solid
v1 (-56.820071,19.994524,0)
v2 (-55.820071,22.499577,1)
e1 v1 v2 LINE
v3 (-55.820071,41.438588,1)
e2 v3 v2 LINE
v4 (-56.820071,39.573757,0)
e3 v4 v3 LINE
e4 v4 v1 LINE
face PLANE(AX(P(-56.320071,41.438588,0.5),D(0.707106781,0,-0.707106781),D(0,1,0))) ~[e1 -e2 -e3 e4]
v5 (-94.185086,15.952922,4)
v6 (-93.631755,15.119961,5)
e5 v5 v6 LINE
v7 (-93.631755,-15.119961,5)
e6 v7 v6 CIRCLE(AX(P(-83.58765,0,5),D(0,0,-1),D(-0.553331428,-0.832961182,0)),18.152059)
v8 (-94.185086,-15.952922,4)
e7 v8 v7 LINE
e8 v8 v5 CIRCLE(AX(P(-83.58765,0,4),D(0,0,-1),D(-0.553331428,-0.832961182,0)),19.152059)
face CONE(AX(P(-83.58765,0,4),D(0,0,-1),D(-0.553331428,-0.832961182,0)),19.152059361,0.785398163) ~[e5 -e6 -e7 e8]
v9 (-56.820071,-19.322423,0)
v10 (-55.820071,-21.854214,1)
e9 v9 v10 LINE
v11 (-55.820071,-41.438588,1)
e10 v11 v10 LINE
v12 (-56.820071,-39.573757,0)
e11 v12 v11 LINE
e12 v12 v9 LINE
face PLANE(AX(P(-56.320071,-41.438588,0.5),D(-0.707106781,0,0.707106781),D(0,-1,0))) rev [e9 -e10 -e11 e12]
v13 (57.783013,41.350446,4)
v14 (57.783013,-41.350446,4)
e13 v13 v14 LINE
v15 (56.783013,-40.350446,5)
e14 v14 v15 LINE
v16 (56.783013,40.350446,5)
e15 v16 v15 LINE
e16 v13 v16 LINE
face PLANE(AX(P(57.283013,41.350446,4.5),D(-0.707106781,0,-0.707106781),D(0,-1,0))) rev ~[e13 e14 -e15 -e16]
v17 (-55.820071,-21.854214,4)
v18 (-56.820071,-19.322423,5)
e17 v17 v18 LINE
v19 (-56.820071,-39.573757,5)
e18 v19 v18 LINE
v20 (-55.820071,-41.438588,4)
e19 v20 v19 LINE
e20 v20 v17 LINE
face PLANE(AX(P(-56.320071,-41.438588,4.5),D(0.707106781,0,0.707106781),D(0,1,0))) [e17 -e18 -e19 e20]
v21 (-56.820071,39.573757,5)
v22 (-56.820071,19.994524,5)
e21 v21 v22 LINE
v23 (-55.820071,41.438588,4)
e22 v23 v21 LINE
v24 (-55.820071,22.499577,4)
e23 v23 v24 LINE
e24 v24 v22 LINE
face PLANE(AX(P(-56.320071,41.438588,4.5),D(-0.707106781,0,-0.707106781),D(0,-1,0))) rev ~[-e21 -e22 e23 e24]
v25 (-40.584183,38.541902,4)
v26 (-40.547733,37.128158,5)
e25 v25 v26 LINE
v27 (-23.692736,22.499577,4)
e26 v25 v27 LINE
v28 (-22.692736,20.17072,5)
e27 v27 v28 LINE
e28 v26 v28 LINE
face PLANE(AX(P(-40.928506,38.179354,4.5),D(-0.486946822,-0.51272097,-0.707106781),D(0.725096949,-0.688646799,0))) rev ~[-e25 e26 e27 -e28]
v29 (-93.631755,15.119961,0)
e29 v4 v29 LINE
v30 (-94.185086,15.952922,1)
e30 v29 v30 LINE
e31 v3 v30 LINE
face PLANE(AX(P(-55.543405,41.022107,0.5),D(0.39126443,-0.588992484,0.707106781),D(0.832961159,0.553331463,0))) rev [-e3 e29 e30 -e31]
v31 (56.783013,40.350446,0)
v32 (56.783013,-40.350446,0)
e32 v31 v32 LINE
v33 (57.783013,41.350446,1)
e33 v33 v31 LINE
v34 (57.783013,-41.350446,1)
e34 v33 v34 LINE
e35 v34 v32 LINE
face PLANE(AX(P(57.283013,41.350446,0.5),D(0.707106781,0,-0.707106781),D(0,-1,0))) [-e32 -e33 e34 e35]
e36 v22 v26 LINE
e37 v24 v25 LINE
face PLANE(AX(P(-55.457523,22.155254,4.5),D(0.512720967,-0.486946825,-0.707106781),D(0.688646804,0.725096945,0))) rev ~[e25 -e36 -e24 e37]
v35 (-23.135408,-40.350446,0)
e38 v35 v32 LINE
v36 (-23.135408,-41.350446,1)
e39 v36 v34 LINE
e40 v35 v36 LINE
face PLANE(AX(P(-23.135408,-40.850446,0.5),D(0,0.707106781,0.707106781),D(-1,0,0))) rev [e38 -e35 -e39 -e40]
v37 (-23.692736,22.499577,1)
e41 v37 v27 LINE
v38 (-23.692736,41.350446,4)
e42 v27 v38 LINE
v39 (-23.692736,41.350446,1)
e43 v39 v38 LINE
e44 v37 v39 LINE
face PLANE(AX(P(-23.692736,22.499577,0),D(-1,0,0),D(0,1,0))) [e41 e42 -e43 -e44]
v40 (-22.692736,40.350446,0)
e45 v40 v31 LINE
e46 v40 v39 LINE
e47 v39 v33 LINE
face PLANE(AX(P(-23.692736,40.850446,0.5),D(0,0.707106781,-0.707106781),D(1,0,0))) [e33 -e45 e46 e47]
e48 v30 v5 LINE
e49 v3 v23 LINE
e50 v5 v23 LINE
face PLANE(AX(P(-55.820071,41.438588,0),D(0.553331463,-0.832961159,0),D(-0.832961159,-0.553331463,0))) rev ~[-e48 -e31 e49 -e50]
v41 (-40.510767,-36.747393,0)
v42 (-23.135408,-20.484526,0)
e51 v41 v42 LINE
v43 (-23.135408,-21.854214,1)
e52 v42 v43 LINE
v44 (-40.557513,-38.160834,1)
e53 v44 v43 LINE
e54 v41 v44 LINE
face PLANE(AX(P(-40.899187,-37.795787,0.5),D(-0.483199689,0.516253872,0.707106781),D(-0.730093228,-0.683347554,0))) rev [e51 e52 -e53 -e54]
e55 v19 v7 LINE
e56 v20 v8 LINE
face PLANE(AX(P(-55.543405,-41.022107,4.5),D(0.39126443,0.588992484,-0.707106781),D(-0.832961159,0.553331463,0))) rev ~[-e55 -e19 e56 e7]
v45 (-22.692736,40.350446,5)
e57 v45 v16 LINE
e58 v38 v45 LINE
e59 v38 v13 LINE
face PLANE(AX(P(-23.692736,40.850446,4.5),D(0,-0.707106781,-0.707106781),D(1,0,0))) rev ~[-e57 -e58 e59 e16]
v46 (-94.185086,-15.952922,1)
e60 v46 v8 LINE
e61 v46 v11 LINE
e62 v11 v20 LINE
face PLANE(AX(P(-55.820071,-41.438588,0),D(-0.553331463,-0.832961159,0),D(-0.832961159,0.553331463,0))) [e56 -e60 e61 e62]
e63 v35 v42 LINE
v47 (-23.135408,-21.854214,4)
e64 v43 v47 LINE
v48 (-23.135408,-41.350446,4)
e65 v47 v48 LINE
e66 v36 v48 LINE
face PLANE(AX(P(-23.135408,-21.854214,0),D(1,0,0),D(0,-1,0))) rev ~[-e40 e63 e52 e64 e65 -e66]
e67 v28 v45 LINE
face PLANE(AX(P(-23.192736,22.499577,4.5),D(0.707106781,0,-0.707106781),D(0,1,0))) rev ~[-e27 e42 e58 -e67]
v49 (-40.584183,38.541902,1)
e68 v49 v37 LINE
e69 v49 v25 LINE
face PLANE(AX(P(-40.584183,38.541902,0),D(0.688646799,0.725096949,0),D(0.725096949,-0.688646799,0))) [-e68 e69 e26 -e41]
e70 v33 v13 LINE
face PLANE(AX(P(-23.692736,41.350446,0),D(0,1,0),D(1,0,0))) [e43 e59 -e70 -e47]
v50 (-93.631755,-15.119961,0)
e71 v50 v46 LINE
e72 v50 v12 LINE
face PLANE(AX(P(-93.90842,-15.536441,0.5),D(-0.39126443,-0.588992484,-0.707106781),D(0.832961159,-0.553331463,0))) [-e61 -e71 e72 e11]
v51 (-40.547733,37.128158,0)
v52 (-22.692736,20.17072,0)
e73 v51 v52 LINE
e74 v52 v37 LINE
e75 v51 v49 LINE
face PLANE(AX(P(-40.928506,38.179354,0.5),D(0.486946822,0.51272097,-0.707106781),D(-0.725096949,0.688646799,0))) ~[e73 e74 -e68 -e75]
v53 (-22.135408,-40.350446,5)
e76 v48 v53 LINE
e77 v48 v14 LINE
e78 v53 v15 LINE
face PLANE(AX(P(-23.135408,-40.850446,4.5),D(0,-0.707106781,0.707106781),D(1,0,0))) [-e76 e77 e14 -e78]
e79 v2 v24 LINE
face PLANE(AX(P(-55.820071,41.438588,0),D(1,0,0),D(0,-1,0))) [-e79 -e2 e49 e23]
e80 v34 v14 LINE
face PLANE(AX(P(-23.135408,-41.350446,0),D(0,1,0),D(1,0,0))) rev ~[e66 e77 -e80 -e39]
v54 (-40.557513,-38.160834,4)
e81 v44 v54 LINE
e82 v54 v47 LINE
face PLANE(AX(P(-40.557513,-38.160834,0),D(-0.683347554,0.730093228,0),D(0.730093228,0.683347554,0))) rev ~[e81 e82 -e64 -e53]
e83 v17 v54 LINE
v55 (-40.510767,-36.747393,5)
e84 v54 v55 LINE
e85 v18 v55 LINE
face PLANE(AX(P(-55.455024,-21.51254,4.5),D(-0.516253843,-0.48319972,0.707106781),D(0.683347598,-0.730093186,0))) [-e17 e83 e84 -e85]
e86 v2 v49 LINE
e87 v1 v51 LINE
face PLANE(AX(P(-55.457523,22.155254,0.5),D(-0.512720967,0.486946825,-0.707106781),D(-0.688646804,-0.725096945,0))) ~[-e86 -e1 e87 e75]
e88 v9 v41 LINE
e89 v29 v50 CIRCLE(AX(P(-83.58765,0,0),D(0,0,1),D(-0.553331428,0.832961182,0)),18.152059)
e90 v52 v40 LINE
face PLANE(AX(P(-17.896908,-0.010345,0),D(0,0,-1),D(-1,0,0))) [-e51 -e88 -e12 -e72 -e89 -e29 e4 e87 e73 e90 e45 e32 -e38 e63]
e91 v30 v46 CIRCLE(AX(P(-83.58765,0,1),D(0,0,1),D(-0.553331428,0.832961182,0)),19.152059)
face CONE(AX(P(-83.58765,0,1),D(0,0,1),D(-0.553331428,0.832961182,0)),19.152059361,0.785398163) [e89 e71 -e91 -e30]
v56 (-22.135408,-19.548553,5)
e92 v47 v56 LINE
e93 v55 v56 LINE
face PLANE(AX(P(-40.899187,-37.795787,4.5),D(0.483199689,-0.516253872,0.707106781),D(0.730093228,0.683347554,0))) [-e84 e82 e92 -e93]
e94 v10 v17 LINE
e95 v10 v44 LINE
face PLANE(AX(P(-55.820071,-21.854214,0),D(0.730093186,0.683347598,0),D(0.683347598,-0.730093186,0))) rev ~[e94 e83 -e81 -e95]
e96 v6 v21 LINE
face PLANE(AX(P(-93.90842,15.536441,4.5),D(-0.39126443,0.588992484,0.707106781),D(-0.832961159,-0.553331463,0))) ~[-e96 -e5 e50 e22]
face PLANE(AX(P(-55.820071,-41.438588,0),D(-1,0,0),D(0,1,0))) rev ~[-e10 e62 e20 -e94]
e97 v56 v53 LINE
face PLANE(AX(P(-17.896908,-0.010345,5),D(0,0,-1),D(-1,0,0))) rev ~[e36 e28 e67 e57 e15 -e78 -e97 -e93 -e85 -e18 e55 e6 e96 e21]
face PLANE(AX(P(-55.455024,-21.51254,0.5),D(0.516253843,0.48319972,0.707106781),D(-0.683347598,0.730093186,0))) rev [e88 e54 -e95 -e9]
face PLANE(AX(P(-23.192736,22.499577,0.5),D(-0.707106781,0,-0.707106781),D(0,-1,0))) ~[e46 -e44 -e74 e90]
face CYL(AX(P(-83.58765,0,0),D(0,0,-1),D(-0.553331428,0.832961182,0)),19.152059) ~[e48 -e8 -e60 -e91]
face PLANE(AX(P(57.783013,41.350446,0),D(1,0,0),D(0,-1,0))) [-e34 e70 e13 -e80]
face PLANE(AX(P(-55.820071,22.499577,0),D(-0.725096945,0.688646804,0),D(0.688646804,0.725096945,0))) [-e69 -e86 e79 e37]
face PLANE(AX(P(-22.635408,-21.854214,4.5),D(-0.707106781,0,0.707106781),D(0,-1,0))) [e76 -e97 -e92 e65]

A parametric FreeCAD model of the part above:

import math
import FreeCAD as App
import Part
import Sketcher
from FreeCAD import Vector
Q = App.Units.Quantity


def edges_at(feature, points):
    """Names of the edges that pass closest to the given points."""
    edges = feature.Shape.Edges
    near = lambda p: min(range(len(edges)), key=lambda i: edges[i].distToShape(Part.Vertex(*p))[0])
    return sorted({f"Edge{near(p) + 1}" for p in points})

doc = App.newDocument("Part")
params = doc.addObject("Spreadsheet::Sheet", "Params")
for row, (alias, value) in enumerate([
    ("pad1_length", "5 mm"),
    ("chamfer_size", "1 mm"),
    ("chamfer2_size", "1 mm"),
], start=1):
    params.set(f"A{row}", alias)
    params.set(f"B{row}", "=" + value)
    params.setAlias(f"B{row}", alias)

body = doc.addObject("PartDesign::Body", "Body")

# Sketch on XY plane
sketch1 = body.newObject("Sketcher::SketchObject", "Sketch")
sketch1.AttachmentSupport = (doc.getObject("XY_Plane"), [""])
sketch1.MapMode = "FlatFace"
sketch1.addGeometry([
    Part.LineSegment(Vector(57.783013, -41.350446, 0), Vector(57.783013, 41.350446, 0)),  # 0
    Part.LineSegment(Vector(57.783013, 41.350446, 0), Vector(-23.692736, 41.350446, 0)),  # 1
    Part.LineSegment(Vector(-23.692736, 41.350446, 0), Vector(-23.692736, 22.499577, 0)),  # 2
    Part.LineSegment(Vector(-23.692736, 22.499577, 0), Vector(-40.584183, 38.541902, 0)),  # 3
    Part.LineSegment(Vector(-40.584183, 38.541902, 0), Vector(-55.820071, 22.499577, 0)),  # 4
    Part.LineSegment(Vector(-55.820071, 22.499577, 0), Vector(-55.820071, 41.438588, 0)),  # 5
    Part.LineSegment(Vector(-55.820071, 41.438588, 0), Vector(-94.185086, 15.952922, 0)),  # 6
    Part.ArcOfCircle(Part.Circle(Vector(-83.58765, 0, 0), Vector(0, 0, 1), 19.152059), math.radians(123.595864), math.radians(236.404136)),  # 7
    Part.LineSegment(Vector(-94.185086, -15.952922, 0), Vector(-55.820071, -41.438588, 0)),  # 8
    Part.LineSegment(Vector(-55.820071, -41.438588, 0), Vector(-55.820071, -21.854214, 0)),  # 9
    Part.LineSegment(Vector(-55.820071, -21.854214, 0), Vector(-40.557513, -38.160834, 0)),  # 10
    Part.LineSegment(Vector(-40.557513, -38.160834, 0), Vector(-23.135408, -21.854214, 0)),  # 11
    Part.LineSegment(Vector(-23.135408, -21.854214, 0), Vector(-23.135408, -41.350446, 0)),  # 12
    Part.LineSegment(Vector(-23.135408, -41.350446, 0), Vector(57.783013, -41.350446, 0)),  # 13
], False)
sketch1.addConstraint([
    Sketcher.Constraint("Coincident", 0, 2, 1, 1),
    Sketcher.Constraint("Coincident", 1, 2, 2, 1),
    Sketcher.Constraint("Coincident", 2, 2, 3, 1),
    Sketcher.Constraint("Coincident", 3, 2, 4, 1),
    Sketcher.Constraint("Coincident", 4, 2, 5, 1),
    Sketcher.Constraint("Coincident", 5, 2, 6, 1),
    Sketcher.Constraint("Coincident", 6, 2, 7, 1),
    Sketcher.Constraint("Coincident", 7, 2, 8, 1),
    Sketcher.Constraint("Coincident", 8, 2, 9, 1),
    Sketcher.Constraint("Coincident", 9, 2, 10, 1),
    Sketcher.Constraint("Coincident", 10, 2, 11, 1),
    Sketcher.Constraint("Coincident", 11, 2, 12, 1),
    Sketcher.Constraint("Coincident", 12, 2, 13, 1),
    Sketcher.Constraint("Coincident", 13, 2, 0, 1),
    Sketcher.Constraint("Vertical", 0),
    Sketcher.Constraint("Horizontal", 1),
    Sketcher.Constraint("Vertical", 2),
    Sketcher.Constraint("Vertical", 5),
    Sketcher.Constraint("Vertical", 9),
    Sketcher.Constraint("Vertical", 12),
    Sketcher.Constraint("Horizontal", 13),
    Sketcher.Constraint("PointOnObject", 7, 3, -1),
    Sketcher.Constraint("Radius", 7, Q("19.152059 mm")),
    Sketcher.Constraint("DistanceX", 1, 2, 1, 1, Q("81.475749 mm")),
    Sketcher.Constraint("DistanceX", 13, 1, 13, 2, Q("80.918421 mm")),
    Sketcher.Constraint("DistanceY", 0, 1, 0, 2, Q("82.700892 mm")),
    Sketcher.Constraint("DistanceY", 2, 2, 2, 1, Q("18.850869 mm")),
    Sketcher.Constraint("DistanceY", 5, 1, 5, 2, Q("18.939011 mm")),
    Sketcher.Constraint("DistanceY", 12, 2, 12, 1, Q("19.496232 mm")),
    Sketcher.Constraint("DistanceY", 7, 2, 4, 2, Q("38.452499 mm")),
    Sketcher.Constraint("Distance", 6, Q("46.058588 mm")),
    Sketcher.Constraint("Distance", 8, Q("46.058588 mm")),
    Sketcher.Constraint("Distance", 11, Q("23.86285 mm")),
    Sketcher.Constraint("DistanceY", 9, 1, 9, 2, Q("19.584374 mm")),
    Sketcher.Constraint("DistanceX", 7, 3, -1, 1, Q("83.58765 mm")),
    Sketcher.Constraint("DistanceX", 4, 2, -1, 1, Q("55.820071 mm")),
    Sketcher.Constraint("DistanceY", -1, 1, 5, 2, Q("41.438588 mm")),
    Sketcher.Constraint("DistanceX", 8, 2, -1, 1, Q("55.820071 mm")),
    Sketcher.Constraint("DistanceX", 11, 2, -1, 1, Q("23.135408 mm")),
    Sketcher.Constraint("DistanceY", 4, 2, 1, 2, Q("18.850869 mm")),
    Sketcher.Constraint("DistanceY", 6, 2, 3, 2, Q("22.58898 mm")),
    Sketcher.Constraint("DistanceY", 10, 2, 9, 2, Q("16.30662 mm")),
    Sketcher.Constraint("Distance", 3, Q("23.295432 mm")),
])
pad1 = body.newObject("PartDesign::Pad", "Pad")
pad1.Profile = sketch1
pad1.setExpression("Length", "Params.pad1_length")
doc.recompute()

chamfer = body.newObject("PartDesign::Chamfer", "Chamfer")
chamfer.Base = (pad1, edges_at(pad1, [
    (-55.82, 31.969, 5),
    (-48.202, 30.521, 5),
    (-32.138, 30.521, 5),
    (-23.693, 31.925, 5),
    (17.045, 41.35, 5),
    (57.783, 0, 5),
    (17.324, -41.35, 5),
    (-23.135, -31.602, 5),
    (-31.846, -30.008, 5),
    (-48.189, -30.008, 5),
    (-55.82, -31.646, 5),
    (-75.003, -28.696, 5),
    (-102.74, 0, 5),
    (-75.003, 28.696, 5),
]))
chamfer.setExpression("Size", "Params.chamfer_size")
doc.recompute()

chamfer2 = body.newObject("PartDesign::Chamfer", "Chamfer001")
chamfer2.Base = (chamfer, edges_at(chamfer, [
    (-55.82, 31.969, 0),
    (-75.003, 28.696, 0),
    (-48.202, 30.521, 0),
    (-32.138, 30.521, 0),
    (-23.693, 31.925, 0),
    (17.045, 41.35, 0),
    (57.783, 0, 0),
    (17.324, -41.35, 0),
    (-31.846, -30.008, 0),
    (-48.189, -30.008, 0),
    (-55.82, -31.646, 0),
    (-75.003, -28.696, 0),
    (-102.74, 0, 0),
]))
chamfer2.setExpression("Size", "Params.chamfer2_size")

doc.recompute()
